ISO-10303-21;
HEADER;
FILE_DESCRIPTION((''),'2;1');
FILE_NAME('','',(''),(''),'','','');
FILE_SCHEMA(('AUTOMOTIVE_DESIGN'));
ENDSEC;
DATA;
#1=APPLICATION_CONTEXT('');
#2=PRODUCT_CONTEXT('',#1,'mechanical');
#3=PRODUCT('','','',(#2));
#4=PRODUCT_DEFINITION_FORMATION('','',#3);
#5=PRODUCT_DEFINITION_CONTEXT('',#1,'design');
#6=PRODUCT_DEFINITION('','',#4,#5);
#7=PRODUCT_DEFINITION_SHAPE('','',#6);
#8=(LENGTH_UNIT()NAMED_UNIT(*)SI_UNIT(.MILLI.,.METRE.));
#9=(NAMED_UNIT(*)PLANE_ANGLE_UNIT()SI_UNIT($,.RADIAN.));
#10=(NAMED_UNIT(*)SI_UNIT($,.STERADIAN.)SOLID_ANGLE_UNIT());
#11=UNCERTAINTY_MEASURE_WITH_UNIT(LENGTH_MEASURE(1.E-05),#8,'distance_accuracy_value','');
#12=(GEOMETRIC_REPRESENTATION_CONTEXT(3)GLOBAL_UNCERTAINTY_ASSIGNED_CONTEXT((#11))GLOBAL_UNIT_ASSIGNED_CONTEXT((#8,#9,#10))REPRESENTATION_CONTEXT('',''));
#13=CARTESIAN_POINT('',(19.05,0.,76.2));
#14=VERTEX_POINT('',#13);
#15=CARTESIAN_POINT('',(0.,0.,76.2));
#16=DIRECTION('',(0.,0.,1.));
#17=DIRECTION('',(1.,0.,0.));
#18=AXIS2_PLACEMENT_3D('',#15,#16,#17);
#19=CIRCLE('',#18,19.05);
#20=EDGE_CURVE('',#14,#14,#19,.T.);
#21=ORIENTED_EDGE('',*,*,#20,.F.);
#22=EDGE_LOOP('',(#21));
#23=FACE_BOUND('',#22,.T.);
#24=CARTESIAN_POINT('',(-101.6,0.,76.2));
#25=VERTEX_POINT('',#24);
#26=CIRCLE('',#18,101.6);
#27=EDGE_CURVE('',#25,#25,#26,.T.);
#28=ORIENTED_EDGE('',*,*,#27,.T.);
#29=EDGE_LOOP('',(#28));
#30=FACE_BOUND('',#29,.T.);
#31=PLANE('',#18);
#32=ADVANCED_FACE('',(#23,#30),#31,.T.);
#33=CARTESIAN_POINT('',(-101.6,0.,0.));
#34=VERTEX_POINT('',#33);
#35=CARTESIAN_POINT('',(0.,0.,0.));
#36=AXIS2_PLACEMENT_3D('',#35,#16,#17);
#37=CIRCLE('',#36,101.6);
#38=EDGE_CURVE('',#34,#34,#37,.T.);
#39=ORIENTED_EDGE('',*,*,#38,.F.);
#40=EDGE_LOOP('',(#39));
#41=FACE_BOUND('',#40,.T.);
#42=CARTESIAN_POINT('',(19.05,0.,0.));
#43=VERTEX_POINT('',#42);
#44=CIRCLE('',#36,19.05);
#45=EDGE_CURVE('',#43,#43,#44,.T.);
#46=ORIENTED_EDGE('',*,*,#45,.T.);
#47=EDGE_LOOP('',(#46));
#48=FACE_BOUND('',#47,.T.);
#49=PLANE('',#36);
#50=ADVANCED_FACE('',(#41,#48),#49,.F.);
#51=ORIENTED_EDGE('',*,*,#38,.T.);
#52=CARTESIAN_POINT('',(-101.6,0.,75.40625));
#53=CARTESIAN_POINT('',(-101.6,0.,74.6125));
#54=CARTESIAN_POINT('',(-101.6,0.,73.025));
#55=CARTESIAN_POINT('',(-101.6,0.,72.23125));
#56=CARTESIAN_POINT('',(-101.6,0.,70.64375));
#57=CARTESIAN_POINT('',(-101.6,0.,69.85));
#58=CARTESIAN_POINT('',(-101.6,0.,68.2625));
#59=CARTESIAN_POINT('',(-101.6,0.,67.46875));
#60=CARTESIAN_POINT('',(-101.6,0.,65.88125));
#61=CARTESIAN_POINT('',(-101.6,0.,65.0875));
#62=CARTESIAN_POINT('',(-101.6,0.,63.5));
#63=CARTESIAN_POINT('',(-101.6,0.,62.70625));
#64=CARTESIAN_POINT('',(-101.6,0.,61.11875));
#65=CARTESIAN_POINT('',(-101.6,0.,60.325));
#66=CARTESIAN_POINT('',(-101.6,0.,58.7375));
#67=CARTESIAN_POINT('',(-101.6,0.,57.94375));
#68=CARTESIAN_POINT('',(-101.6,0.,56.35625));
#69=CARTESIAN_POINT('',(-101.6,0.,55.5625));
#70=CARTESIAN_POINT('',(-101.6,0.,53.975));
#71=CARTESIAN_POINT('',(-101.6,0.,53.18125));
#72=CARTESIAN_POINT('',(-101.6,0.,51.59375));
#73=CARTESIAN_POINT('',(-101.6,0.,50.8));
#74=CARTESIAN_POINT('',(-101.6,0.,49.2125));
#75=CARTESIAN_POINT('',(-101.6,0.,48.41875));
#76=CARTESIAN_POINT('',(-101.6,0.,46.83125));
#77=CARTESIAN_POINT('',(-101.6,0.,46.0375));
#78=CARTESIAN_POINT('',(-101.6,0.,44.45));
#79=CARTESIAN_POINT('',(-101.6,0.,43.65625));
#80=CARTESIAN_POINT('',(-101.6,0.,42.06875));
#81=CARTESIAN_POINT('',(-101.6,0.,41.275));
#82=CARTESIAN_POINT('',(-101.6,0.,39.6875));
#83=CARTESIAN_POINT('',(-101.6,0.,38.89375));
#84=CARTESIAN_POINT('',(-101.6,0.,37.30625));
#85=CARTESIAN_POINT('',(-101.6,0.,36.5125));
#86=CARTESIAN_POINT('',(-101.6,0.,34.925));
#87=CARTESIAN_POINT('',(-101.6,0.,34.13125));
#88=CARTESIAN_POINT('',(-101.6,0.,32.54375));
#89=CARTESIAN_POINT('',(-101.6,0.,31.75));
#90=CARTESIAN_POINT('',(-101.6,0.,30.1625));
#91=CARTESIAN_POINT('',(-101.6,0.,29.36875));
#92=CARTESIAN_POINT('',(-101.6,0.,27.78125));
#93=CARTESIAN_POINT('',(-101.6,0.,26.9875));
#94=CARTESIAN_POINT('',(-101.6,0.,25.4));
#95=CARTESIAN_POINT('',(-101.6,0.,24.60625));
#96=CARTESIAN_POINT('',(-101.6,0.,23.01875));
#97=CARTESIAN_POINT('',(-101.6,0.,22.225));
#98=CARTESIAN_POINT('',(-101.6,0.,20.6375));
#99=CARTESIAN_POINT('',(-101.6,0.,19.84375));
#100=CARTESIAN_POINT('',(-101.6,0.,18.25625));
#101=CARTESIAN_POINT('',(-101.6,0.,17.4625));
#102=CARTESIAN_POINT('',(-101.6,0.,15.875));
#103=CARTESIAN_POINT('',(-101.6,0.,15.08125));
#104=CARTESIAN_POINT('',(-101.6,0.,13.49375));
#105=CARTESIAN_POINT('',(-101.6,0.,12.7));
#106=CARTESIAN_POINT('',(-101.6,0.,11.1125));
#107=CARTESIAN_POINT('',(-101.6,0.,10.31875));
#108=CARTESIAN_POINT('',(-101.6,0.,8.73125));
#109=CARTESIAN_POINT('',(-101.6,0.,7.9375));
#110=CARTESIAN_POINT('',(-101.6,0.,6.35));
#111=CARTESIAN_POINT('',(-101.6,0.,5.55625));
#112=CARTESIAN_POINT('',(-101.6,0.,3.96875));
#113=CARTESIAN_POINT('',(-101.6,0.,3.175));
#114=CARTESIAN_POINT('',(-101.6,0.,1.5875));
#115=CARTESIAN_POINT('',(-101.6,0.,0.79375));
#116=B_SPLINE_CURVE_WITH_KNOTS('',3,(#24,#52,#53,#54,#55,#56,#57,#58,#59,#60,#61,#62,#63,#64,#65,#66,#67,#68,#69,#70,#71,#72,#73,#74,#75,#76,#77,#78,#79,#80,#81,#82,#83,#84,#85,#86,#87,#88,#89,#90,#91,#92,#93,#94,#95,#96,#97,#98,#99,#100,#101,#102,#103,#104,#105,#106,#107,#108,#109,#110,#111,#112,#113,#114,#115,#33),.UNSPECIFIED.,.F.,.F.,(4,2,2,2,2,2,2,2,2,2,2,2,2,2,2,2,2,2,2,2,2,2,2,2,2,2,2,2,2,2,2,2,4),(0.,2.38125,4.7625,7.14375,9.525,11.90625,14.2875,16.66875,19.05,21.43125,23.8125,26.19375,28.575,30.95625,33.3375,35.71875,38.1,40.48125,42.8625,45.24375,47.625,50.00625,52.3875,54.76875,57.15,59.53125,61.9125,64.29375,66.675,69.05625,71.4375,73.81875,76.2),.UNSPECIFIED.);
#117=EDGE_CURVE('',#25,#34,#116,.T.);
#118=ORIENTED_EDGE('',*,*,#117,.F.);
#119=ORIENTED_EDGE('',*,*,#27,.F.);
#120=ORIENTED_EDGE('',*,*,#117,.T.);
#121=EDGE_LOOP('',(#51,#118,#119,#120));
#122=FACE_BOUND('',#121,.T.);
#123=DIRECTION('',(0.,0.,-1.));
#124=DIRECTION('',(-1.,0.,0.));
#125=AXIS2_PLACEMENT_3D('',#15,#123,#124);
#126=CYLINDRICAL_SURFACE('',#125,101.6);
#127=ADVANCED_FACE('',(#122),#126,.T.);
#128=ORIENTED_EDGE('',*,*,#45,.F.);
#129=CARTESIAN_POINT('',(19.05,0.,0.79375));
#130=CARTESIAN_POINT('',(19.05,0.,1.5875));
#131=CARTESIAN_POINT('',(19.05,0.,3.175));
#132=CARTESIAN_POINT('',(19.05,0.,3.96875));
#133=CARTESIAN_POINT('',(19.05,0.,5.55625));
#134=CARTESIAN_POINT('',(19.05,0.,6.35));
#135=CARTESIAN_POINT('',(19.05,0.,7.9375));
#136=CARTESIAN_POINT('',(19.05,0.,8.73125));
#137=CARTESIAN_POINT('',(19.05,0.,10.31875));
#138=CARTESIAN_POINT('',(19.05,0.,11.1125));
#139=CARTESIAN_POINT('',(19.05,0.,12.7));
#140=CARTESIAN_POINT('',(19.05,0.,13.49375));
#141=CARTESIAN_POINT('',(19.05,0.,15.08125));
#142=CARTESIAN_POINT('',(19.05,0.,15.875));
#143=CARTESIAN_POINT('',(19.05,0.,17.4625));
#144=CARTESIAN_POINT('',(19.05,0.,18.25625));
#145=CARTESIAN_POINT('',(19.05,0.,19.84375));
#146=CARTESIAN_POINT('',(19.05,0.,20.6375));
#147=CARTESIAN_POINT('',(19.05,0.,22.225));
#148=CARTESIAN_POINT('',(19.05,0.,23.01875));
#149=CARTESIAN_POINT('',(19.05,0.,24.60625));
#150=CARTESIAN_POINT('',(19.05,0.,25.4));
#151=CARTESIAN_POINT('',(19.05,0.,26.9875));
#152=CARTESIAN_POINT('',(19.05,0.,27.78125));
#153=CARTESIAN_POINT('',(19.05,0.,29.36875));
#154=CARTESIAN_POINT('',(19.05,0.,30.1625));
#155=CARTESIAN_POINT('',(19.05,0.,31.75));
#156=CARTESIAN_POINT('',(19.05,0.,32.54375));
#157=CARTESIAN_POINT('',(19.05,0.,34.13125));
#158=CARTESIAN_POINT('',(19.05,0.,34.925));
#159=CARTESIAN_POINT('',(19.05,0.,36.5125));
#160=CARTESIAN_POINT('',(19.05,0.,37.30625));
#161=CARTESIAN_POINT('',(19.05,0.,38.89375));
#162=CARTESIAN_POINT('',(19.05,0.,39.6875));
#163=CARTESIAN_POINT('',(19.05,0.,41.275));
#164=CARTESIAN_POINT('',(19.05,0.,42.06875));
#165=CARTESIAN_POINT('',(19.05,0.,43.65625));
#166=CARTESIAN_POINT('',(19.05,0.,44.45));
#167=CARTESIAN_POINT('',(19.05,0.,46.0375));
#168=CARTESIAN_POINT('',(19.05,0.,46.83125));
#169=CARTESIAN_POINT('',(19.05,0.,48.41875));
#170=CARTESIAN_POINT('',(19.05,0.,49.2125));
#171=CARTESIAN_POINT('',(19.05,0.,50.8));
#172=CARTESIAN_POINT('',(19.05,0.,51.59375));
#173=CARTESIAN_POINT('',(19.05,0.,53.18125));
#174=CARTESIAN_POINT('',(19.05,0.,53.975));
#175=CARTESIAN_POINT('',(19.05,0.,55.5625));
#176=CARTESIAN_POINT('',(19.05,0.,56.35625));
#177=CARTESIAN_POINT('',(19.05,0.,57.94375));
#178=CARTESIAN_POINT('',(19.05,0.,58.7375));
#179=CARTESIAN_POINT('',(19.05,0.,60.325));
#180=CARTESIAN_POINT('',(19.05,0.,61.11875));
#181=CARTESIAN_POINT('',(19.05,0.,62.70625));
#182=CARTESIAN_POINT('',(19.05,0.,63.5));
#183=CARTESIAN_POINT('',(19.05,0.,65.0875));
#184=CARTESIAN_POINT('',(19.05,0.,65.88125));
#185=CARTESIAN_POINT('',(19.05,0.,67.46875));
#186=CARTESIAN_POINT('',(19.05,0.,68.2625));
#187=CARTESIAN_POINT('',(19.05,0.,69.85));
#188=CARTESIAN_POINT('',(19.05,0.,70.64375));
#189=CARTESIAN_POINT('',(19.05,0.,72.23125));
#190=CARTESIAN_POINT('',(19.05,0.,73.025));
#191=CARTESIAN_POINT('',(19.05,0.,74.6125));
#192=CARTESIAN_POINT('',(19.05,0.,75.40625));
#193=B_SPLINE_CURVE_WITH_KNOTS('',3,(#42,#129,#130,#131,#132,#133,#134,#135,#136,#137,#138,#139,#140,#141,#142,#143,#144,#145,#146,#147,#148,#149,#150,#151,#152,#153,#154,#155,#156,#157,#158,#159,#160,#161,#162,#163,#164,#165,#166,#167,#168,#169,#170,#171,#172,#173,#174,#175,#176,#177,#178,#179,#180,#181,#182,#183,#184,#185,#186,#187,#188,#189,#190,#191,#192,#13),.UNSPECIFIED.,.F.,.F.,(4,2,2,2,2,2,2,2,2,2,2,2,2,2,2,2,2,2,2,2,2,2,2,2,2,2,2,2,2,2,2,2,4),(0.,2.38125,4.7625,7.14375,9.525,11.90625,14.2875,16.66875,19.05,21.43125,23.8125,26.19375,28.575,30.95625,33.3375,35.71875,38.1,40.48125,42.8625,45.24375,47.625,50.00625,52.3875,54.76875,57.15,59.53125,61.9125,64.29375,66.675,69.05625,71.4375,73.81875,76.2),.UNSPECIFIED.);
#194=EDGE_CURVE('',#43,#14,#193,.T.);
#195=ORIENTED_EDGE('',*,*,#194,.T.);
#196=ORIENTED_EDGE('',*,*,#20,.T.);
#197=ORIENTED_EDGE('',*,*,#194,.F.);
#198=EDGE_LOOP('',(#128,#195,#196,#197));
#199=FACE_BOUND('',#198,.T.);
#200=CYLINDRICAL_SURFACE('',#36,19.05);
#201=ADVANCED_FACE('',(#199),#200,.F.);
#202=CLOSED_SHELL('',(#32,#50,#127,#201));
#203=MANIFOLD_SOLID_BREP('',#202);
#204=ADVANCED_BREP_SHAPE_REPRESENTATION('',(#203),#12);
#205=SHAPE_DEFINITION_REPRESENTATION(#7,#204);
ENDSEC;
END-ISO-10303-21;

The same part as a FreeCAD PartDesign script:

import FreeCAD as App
import Part
import Sketcher
from FreeCAD import Vector
Q = App.Units.Quantity

doc = App.newDocument("Part")
body = doc.addObject("PartDesign::Body", "Body")

sketch1 = body.newObject("Sketcher::SketchObject", "Sketch")
sketch1.AttachmentSupport = (doc.getObject("XY_Plane"), [""])
sketch1.MapMode = "FlatFace"
sketch1.addGeometry(Part.Circle(Vector(0, 0, 0), Vector(0, 0, 1), 102), False)
sketch1.addConstraint([
    Sketcher.Constraint("Coincident", 0, 3, -1, 1),
    Sketcher.Constraint("Diameter", 0, Q("8 in")),
])
pad1 = body.newObject("PartDesign::Pad", "Pad")
pad1.Profile = sketch1
pad1.Length = Q("3 in")

sketch2 = body.newObject("Sketcher::SketchObject", "Sketch001")
sketch2.AttachmentSupport = (doc.getObject("XY_Plane"), [""])
sketch2.MapMode = "FlatFace"
sketch2.AttachmentOffset = App.Placement(Vector(0, 0, 3 * 25.4), App.Rotation())
sketch2.addGeometry(Part.Circle(Vector(0, 0, 0), Vector(0, 0, 1), 19), False)
sketch2.addConstraint([
    Sketcher.Constraint("Coincident", 0, 3, -1, 1),
    Sketcher.Constraint("Diameter", 0, Q("1.5 in")),
])
pocket1 = body.newObject("PartDesign::Pocket", "Pocket")
pocket1.Profile = sketch2
pocket1.Length = Q("3 in")

doc.recompute()
